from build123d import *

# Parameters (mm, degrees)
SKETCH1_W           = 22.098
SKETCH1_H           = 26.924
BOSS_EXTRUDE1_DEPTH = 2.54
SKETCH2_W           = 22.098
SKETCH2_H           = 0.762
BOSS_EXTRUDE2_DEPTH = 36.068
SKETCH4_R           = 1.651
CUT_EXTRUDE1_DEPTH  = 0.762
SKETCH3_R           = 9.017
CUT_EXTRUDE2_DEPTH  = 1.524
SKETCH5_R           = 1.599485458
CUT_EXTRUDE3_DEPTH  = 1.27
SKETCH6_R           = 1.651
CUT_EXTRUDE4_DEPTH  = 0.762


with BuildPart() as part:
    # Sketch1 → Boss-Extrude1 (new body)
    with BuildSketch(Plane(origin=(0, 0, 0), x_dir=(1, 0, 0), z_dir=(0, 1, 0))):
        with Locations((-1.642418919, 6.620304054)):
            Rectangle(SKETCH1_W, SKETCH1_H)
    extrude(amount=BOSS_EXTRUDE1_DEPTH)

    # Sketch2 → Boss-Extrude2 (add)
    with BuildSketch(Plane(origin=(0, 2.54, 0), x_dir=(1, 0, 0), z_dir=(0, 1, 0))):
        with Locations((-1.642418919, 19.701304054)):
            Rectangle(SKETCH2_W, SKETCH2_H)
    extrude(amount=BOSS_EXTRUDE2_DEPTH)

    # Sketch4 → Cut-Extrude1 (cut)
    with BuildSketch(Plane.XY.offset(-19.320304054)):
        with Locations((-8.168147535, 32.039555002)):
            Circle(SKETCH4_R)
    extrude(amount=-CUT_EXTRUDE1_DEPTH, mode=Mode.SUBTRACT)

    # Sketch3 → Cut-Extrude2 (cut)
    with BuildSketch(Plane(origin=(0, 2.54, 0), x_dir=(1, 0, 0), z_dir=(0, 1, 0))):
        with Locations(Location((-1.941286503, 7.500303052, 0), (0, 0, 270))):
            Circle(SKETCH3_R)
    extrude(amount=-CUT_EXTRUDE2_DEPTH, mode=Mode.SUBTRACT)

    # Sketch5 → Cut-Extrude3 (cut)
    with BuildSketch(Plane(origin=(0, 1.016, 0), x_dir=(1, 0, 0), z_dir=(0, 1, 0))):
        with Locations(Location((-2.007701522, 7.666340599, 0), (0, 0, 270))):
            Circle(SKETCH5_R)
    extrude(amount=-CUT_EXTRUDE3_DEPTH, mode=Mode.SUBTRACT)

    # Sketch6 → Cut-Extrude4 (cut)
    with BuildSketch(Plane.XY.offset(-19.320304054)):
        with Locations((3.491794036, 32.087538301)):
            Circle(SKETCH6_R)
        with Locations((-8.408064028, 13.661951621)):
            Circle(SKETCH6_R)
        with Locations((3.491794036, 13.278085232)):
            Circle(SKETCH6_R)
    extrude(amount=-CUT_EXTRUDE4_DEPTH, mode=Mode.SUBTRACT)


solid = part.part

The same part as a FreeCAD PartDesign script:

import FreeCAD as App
import Part
import Sketcher
from FreeCAD import Vector
Q = App.Units.Quantity


def add_polygon(sketch, points):
    """Adds a closed chain of lines whose ends are joined by coincident constraints."""
    first, n = sketch.GeometryCount, len(points)
    for a, b in zip(points, points[1:] + points[:1]):
        sketch.addGeometry(Part.LineSegment(App.Vector(*a, 0), App.Vector(*b, 0)), False)
    for i in range(n):
        sketch.addConstraint(Sketcher.Constraint("Coincident", first + i, 2, first + (i + 1) % n, 1))

doc = App.newDocument("Part")
body = doc.addObject("PartDesign::Body", "Body")

# Sketch on XZ plane
sketch1 = body.newObject("Sketcher::SketchObject", "Sketch")
sketch1.AttachmentSupport = (doc.getObject("XZ_Plane"), [""])
sketch1.MapMode = "FlatFace"
add_polygon(sketch1, [(-13, -20), (-13, 7), (9, 7), (9, -20)])  # lines 0-3
sketch1.addConstraint([
    Sketcher.Constraint("Vertical", 0),
    Sketcher.Constraint("Horizontal", 1),
    Sketcher.Constraint("Vertical", 2),
    Sketcher.Constraint("Horizontal", 3),
    Sketcher.Constraint("DistanceX", 1, 1, 1, 2, Q("0.87 in")),
    Sketcher.Constraint("DistanceY", 0, 1, 0, 2, Q("1.06 in")),
    Sketcher.Constraint("DistanceX", 0, 2, -1, 1, 12.691419),
    Sketcher.Constraint("DistanceY", -1, 1, 0, 2, 6.841696),
])
pad1 = body.newObject("PartDesign::Pad", "Pad")
pad1.Profile = sketch1
pad1.Length = Q("0.1 in")
pad1.Reversed = True

# Sketch on XZ plane
sketch2 = body.newObject("Sketcher::SketchObject", "Sketch001")
sketch2.AttachmentSupport = (doc.getObject("XZ_Plane"), [""])
sketch2.MapMode = "FlatFace"
sketch2.AttachmentOffset = App.Placement(Vector(0, 0, -0.1 * 25.4), App.Rotation())
add_polygon(sketch2, [(-12.7, -20.1), (-12.7, -19.3), (9.4, -19.3), (9.4, -20.1)])  # lines 0-3
sketch2.addConstraint([
    Sketcher.Constraint("Vertical", 0),
    Sketcher.Constraint("Horizontal", 1),
    Sketcher.Constraint("Vertical", 2),
    Sketcher.Constraint("Horizontal", 3),
    Sketcher.Constraint("DistanceX", 1, 1, 1, 2, Q("0.87 in")),
    Sketcher.Constraint("DistanceY", 0, 1, 0, 2, Q("0.03 in")),
    Sketcher.Constraint("DistanceX", 0, 2, -1, 1, 12.691419),
    Sketcher.Constraint("DistanceY", 0, 2, -1, 1, 19.320304),
])
pad2 = body.newObject("PartDesign::Pad", "Pad001")
pad2.Profile = sketch2
pad2.Length = Q("1.42 in")
pad2.Reversed = True

# Sketch on XY plane
sketch3 = body.newObject("Sketcher::SketchObject", "Sketch002")
sketch3.AttachmentSupport = (doc.getObject("XY_Plane"), [""])
sketch3.MapMode = "FlatFace"
sketch3.AttachmentOffset = App.Placement(Vector(0, 0, -19.320304), App.Rotation())
sketch3.addGeometry(Part.Circle(Vector(-8.2, 32, 0), Vector(0, 0, 1), 1.7), False)
sketch3.addConstraint([
    Sketcher.Constraint("Diameter", 0, Q("0.13 in")),
    Sketcher.Constraint("DistanceY", -1, 1, 0, 3, Q("1.2613998 in")),
    Sketcher.Constraint("DistanceX", 0, 3, -1, 1, 8.168148),
])
pocket1 = body.newObject("PartDesign::Pocket", "Pocket")
pocket1.Profile = sketch3
pocket1.Length = Q("0.03 in")

# Sketch on XZ plane
sketch4 = body.newObject("Sketcher::SketchObject", "Sketch003")
sketch4.AttachmentSupport = (doc.getObject("XZ_Plane"), [""])
sketch4.MapMode = "FlatFace"
sketch4.AttachmentOffset = App.Placement(Vector(0, 0, -0.1 * 25.4), App.Rotation())
sketch4.addGeometry(Part.Circle(Vector(-2, -8, 0), Vector(0, 0, 1), 9), False)
sketch4.addConstraint([
    Sketcher.Constraint("Diameter", 0, Q("0.71 in")),
    Sketcher.Constraint("DistanceX", 0, 3, -1, 1, 1.941287),
    Sketcher.Constraint("DistanceY", 0, 3, -1, 1, 7.500303),
])
pocket2 = body.newObject("PartDesign::Pocket", "Pocket001")
pocket2.Profile = sketch4
pocket2.Length = Q("0.06 in")
pocket2.Reversed = True

# Sketch on XZ plane
sketch5 = body.newObject("Sketcher::SketchObject", "Sketch004")
sketch5.AttachmentSupport = (doc.getObject("XZ_Plane"), [""])
sketch5.MapMode = "FlatFace"
sketch5.AttachmentOffset = App.Placement(Vector(0, 0, -0.04 * 25.4), App.Rotation())
sketch5.addGeometry(Part.Circle(Vector(-2, -7.7, 0), Vector(0, 0, 1), 1.6), False)
sketch5.addConstraint([
    Sketcher.Constraint("Diameter", 0, 3.198971),
    Sketcher.Constraint("DistanceX", 0, 3, -1, 1, 2.007702),
    Sketcher.Constraint("DistanceY", 0, 3, -1, 1, 7.666341),
])
pocket3 = body.newObject("PartDesign::Pocket", "Pocket002")
pocket3.Profile = sketch5
pocket3.Length = Q("0.05 in")
pocket3.Reversed = True

# Sketch on XY plane
sketch6 = body.newObject("Sketcher::SketchObject", "Sketch005")
sketch6.AttachmentSupport = (doc.getObject("XY_Plane"), [""])
sketch6.MapMode = "FlatFace"
sketch6.AttachmentOffset = App.Placement(Vector(0, 0, -19.320304), App.Rotation())
sketch6.addGeometry([
    Part.Circle(Vector(3.5, 32.1, 0), Vector(0, 0, 1), 1.7),
    Part.Circle(Vector(-8.4, 13.7, 0), Vector(0, 0, 1), 1.7),
    Part.Circle(Vector(3.5, 13.3, 0), Vector(0, 0, 1), 1.7),
], False)
sketch6.addConstraint([
    Sketcher.Constraint("Equal", 0, 1),
    Sketcher.Constraint("Equal", 1, 2),
    Sketcher.Constraint("Vertical", 0, 3, 2, 3),
    Sketcher.Constraint("Diameter", 0, Q("0.13 in")),
    Sketcher.Constraint("DistanceY", -1, 1, 0, 3, 32.087538),
    Sketcher.Constraint("DistanceY", -1, 1, 1, 3, 13.661952),
    Sketcher.Constraint("DistanceX", 1, 3, 0, 3, 11.899858),
    Sketcher.Constraint("DistanceX", -1, 1, 0, 3, 3.491794),
    Sketcher.Constraint("DistanceY", -1, 1, 2, 3, 13.278085),
])
pocket4 = body.newObject("PartDesign::Pocket", "Pocket003")
pocket4.Profile = sketch6
pocket4.Length = Q("0.03 in")

doc.recompute()
